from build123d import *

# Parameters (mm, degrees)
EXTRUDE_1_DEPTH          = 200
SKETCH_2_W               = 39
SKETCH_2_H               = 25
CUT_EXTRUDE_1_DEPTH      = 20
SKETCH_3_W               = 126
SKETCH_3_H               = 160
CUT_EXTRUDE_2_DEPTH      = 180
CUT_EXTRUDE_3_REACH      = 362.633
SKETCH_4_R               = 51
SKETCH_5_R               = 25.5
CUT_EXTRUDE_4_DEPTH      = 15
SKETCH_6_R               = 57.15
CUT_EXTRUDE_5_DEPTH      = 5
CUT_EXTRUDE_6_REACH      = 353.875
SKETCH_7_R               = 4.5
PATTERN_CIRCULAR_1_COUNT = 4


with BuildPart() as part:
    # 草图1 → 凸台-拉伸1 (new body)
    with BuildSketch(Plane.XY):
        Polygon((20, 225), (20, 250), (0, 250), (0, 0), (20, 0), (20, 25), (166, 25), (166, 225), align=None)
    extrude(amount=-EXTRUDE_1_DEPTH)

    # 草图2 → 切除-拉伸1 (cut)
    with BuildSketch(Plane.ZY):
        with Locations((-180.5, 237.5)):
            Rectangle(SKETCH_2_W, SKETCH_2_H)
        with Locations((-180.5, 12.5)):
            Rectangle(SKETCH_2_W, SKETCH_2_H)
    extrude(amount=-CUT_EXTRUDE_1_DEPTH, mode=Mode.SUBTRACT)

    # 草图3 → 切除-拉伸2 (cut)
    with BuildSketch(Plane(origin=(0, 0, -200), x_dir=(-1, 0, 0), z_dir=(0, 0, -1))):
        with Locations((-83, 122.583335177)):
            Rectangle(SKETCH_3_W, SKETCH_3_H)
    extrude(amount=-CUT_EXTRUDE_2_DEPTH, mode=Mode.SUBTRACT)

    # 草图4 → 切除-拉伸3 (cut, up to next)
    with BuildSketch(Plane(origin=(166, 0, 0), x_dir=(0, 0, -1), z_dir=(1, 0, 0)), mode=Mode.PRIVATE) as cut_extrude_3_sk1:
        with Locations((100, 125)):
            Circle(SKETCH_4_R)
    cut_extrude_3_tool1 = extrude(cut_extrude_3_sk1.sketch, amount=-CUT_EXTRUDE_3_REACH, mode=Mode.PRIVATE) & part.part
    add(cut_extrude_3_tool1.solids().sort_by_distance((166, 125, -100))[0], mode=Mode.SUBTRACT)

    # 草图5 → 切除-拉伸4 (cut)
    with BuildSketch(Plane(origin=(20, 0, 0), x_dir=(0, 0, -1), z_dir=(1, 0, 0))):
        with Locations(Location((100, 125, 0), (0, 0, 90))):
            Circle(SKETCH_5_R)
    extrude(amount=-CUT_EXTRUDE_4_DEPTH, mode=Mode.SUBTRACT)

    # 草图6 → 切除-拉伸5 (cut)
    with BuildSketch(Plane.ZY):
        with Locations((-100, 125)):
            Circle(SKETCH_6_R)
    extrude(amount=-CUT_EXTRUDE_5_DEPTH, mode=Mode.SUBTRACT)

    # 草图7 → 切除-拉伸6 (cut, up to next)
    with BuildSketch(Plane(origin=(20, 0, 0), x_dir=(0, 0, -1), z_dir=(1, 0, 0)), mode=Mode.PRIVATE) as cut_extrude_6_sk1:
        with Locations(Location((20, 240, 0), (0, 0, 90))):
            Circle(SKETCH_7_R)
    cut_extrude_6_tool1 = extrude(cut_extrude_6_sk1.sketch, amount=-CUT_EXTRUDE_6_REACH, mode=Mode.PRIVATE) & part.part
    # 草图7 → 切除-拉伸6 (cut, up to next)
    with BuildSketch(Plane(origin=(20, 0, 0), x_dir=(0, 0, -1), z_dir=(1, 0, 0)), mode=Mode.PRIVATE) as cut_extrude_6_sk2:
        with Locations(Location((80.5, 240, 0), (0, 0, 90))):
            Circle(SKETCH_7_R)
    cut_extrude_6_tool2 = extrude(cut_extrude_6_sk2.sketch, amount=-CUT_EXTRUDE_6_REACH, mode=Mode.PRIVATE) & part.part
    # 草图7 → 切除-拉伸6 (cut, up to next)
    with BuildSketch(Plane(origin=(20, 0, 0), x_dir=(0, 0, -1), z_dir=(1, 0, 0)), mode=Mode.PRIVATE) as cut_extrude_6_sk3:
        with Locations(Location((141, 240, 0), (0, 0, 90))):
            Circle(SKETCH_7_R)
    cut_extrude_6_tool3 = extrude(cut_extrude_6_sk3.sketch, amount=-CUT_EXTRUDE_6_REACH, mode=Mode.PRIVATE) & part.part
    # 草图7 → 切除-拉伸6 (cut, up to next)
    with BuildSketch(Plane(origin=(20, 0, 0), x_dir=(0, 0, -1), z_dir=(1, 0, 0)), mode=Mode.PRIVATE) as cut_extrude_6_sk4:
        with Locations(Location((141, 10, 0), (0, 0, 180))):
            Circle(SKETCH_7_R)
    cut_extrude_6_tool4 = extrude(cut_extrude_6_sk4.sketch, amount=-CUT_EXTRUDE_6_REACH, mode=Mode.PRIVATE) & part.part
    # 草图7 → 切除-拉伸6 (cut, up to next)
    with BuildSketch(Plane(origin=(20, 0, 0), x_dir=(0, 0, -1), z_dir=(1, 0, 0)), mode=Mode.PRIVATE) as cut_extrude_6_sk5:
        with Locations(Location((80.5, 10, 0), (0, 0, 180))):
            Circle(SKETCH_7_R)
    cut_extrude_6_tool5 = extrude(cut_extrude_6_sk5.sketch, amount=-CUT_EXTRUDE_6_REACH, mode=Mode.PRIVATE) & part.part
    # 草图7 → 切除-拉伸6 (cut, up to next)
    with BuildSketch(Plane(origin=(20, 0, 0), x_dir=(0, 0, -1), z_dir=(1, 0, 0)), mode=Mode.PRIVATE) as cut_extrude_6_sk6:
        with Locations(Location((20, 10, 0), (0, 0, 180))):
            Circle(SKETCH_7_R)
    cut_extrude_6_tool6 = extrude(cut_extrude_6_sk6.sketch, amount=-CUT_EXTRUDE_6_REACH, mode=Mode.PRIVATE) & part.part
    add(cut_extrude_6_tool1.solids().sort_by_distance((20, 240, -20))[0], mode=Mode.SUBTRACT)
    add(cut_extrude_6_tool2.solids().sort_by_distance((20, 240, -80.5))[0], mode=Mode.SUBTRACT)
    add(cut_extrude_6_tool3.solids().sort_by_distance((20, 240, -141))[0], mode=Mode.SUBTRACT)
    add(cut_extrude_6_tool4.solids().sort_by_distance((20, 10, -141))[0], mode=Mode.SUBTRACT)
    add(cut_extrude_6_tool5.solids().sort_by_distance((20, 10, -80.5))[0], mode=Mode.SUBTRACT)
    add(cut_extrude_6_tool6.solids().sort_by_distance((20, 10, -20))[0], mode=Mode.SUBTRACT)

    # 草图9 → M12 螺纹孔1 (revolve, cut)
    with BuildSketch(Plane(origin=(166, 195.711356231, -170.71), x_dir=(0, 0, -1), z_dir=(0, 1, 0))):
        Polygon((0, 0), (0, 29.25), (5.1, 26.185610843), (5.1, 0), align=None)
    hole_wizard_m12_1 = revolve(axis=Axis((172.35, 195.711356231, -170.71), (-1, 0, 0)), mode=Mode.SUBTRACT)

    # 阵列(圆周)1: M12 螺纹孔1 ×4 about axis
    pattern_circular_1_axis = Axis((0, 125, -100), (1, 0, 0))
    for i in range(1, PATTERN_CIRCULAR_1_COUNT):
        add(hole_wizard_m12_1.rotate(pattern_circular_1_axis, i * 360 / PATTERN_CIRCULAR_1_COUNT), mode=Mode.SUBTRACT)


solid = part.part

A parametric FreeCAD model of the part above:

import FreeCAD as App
import Part
import Sketcher

V = App.Vector
Q = App.Units.Quantity


def add_polygon(sketch, points):
    """Adds a closed chain of lines whose ends are joined by coincident constraints."""
    first, n = sketch.GeometryCount, len(points)
    for a, b in zip(points, points[1:] + points[:1]):
        sketch.addGeometry(Part.LineSegment(App.Vector(*a, 0), App.Vector(*b, 0)), False)
    for i in range(n):
        sketch.addConstraint(Sketcher.Constraint("Coincident", first + i, 2, first + (i + 1) % n, 1))

doc = App.newDocument("Part")
body = doc.addObject("PartDesign::Body", "Body")

sketch1 = body.newObject("Sketcher::SketchObject", "Sketch")
sketch1.AttachmentSupport = (doc.getObject("XY_Plane"), [""])
sketch1.MapMode = "FlatFace"
add_polygon(sketch1, [(20, 225), (20, 250), (0, 250), (0, 0), (20, 0), (20, 25), (166, 25), (166, 225)])
sketch1.addConstraint(Sketcher.Constraint("Vertical", 0))
sketch1.addConstraint(Sketcher.Constraint("Horizontal", 1))
sketch1.addConstraint(Sketcher.Constraint("Vertical", 2))
sketch1.addConstraint(Sketcher.Constraint("Horizontal", 3))
sketch1.addConstraint(Sketcher.Constraint("Vertical", 4))
sketch1.addConstraint(Sketcher.Constraint("Horizontal", 5))
sketch1.addConstraint(Sketcher.Constraint("Vertical", 6))
sketch1.addConstraint(Sketcher.Constraint("Horizontal", 7))
sketch1.addConstraint(Sketcher.Constraint("Coincident", 2, 2, -1, 1))
sketch1.addConstraint(Sketcher.Constraint("Vertical", 0, 2, 3, 2))
sketch1.addConstraint(Sketcher.Constraint("Equal", 0, 4))
sketch1.addConstraint(Sketcher.Constraint("DistanceX", 1, 2, 1, 1, Q("20 mm")))
sketch1.addConstraint(Sketcher.Constraint("DistanceX", 5, 1, 5, 2, Q("146 mm")))
sketch1.addConstraint(Sketcher.Constraint("DistanceY", 0, 1, 0, 2, Q("25 mm")))
sketch1.addConstraint(Sketcher.Constraint("DistanceY", 2, 2, 2, 1, Q("250 mm")))
pad1 = body.newObject("PartDesign::Pad", "Pad")
pad1.Profile = sketch1
pad1.Length = 200
pad1.Reversed = True

sketch2 = body.newObject("Sketcher::SketchObject", "Sketch001")
sketch2.AttachmentSupport = (doc.getObject("YZ_Plane"), [""])
sketch2.MapMode = "FlatFace"
add_polygon(sketch2, [(250, -200), (225, -200), (225, -161), (250, -161)])
add_polygon(sketch2, [(25, -200), (0, -200), (0, -161), (25, -161)])
sketch2.addConstraint(Sketcher.Constraint("Horizontal", 0))
sketch2.addConstraint(Sketcher.Constraint("Vertical", 1))
sketch2.addConstraint(Sketcher.Constraint("Horizontal", 2))
sketch2.addConstraint(Sketcher.Constraint("Vertical", 3))
sketch2.addConstraint(Sketcher.Constraint("Horizontal", 4))
sketch2.addConstraint(Sketcher.Constraint("Vertical", 5))
sketch2.addConstraint(Sketcher.Constraint("Horizontal", 6))
sketch2.addConstraint(Sketcher.Constraint("Vertical", 7))
sketch2.addConstraint(Sketcher.Constraint("PointOnObject", 4, 2, -2))
sketch2.addConstraint(Sketcher.Constraint("Horizontal", 3, 2, 4, 2))
sketch2.addConstraint(Sketcher.Constraint("Horizontal", 2, 2, 5, 2))
sketch2.addConstraint(Sketcher.Constraint("Equal", 2, 4))
sketch2.addConstraint(Sketcher.Constraint("DistanceX", 0, 2, 0, 1, Q("25 mm")))
sketch2.addConstraint(Sketcher.Constraint("DistanceY", 1, 1, 1, 2, Q("39 mm")))
sketch2.addConstraint(Sketcher.Constraint("DistanceX", -1, 1, 0, 2, Q("225 mm")))
sketch2.addConstraint(Sketcher.Constraint("DistanceY", 0, 2, -1, 1, Q("200 mm")))
pocket1 = body.newObject("PartDesign::Pocket", "Pocket")
pocket1.Profile = sketch2
pocket1.Length = 20
pocket1.Reversed = True

sketch3 = body.newObject("Sketcher::SketchObject", "Sketch002")
sketch3.AttachmentSupport = (doc.getObject("XY_Plane"), [""])
sketch3.MapMode = "FlatFace"
sketch3.AttachmentOffset = App.Placement(V(0, 0, -200), App.Rotation())
add_polygon(sketch3, [(146, 202.583335), (146, 42.583335), (20, 42.583335), (20, 202.583335)])
sketch3.addConstraint(Sketcher.Constraint("Vertical", 0))
sketch3.addConstraint(Sketcher.Constraint("Horizontal", 1))
sketch3.addConstraint(Sketcher.Constraint("Vertical", 2))
sketch3.addConstraint(Sketcher.Constraint("Horizontal", 3))
sketch3.addConstraint(Sketcher.Constraint("DistanceX", 1, 2, 1, 1, Q("126 mm")))
sketch3.addConstraint(Sketcher.Constraint("DistanceY", 0, 2, 0, 1, Q("160 mm")))
sketch3.addConstraint(Sketcher.Constraint("DistanceX", -1, 1, 0, 2, Q("146 mm")))
sketch3.addConstraint(Sketcher.Constraint("DistanceY", -1, 1, 0, 2, Q("42.583335 mm")))
pocket2 = body.newObject("PartDesign::Pocket", "Pocket001")
pocket2.Profile = sketch3
pocket2.Length = 180
pocket2.Reversed = True

sketch4 = body.newObject("Sketcher::SketchObject", "Sketch003")
sketch4.AttachmentSupport = (doc.getObject("YZ_Plane"), [""])
sketch4.MapMode = "FlatFace"
sketch4.AttachmentOffset = App.Placement(V(0, 0, 166), App.Rotation())
sketch4.addGeometry(Part.Circle(V(125, -100, 0), V(0, 0, 1), 51), False)
sketch4.addConstraint(Sketcher.Constraint("Diameter", 0, Q("102 mm")))
sketch4.addConstraint(Sketcher.Constraint("DistanceX", -1, 1, 0, 3, Q("125 mm")))
sketch4.addConstraint(Sketcher.Constraint("DistanceY", 0, 3, -1, 1, Q("100 mm")))
pocket3 = body.newObject("PartDesign::Pocket", "Pocket002")
pocket3.Profile = sketch4
pocket3.Type = "UpToFirst"

sketch5 = body.newObject("Sketcher::SketchObject", "Sketch004")
sketch5.AttachmentSupport = (doc.getObject("YZ_Plane"), [""])
sketch5.MapMode = "FlatFace"
sketch5.AttachmentOffset = App.Placement(V(0, 0, 20), App.Rotation())
sketch5.addGeometry(Part.Circle(V(125, -100, 0), V(0, 0, 1), 25.5), False)
sketch5.addConstraint(Sketcher.Constraint("Diameter", 0, Q("51 mm")))
sketch5.addConstraint(Sketcher.Constraint("DistanceX", -1, 1, 0, 3, Q("125 mm")))
sketch5.addConstraint(Sketcher.Constraint("DistanceY", 0, 3, -1, 1, Q("100 mm")))
pocket4 = body.newObject("PartDesign::Pocket", "Pocket003")
pocket4.Profile = sketch5
pocket4.Length = 15

sketch6 = body.newObject("Sketcher::SketchObject", "Sketch005")
sketch6.AttachmentSupport = (doc.getObject("YZ_Plane"), [""])
sketch6.MapMode = "FlatFace"
sketch6.addGeometry(Part.Circle(V(125, -100, 0), V(0, 0, 1), 57.15), False)
sketch6.addConstraint(Sketcher.Constraint("Diameter", 0, Q("114.3 mm")))
sketch6.addConstraint(Sketcher.Constraint("DistanceX", -1, 1, 0, 3, Q("125 mm")))
sketch6.addConstraint(Sketcher.Constraint("DistanceY", 0, 3, -1, 1, Q("100 mm")))
pocket5 = body.newObject("PartDesign::Pocket", "Pocket004")
pocket5.Profile = sketch6
pocket5.Length = 5
pocket5.Reversed = True

sketch7 = body.newObject("Sketcher::SketchObject", "Sketch006")
sketch7.AttachmentSupport = (doc.getObject("YZ_Plane"), [""])
sketch7.MapMode = "FlatFace"
sketch7.AttachmentOffset = App.Placement(V(0, 0, 20), App.Rotation())
sketch7.addGeometry(Part.Circle(V(240, -20, 0), V(0, 0, 1), 4.5), False)
sketch7.addConstraint(Sketcher.Constraint("Diameter", 0, Q("9 mm")))
sketch7.addConstraint(Sketcher.Constraint("DistanceX", -1, 1, 0, 3, Q("240 mm")))
sketch7.addConstraint(Sketcher.Constraint("DistanceY", 0, 3, -1, 1, Q("20 mm")))
pocket6 = body.newObject("PartDesign::Pocket", "Pocket005")
pocket6.Profile = sketch7
pocket6.Type = "UpToFirst"

sketch8 = body.newObject("Sketcher::SketchObject", "Sketch007")
sketch8.AttachmentSupport = (doc.getObject("YZ_Plane"), [""])
sketch8.MapMode = "FlatFace"
sketch8.AttachmentOffset = App.Placement(V(0, 0, 20), App.Rotation())
sketch8.addGeometry(Part.Circle(V(240, -80.5, 0), V(0, 0, 1), 4.5), False)
sketch8.addConstraint(Sketcher.Constraint("Diameter", 0, Q("9 mm")))
sketch8.addConstraint(Sketcher.Constraint("DistanceX", -1, 1, 0, 3, Q("240 mm")))
sketch8.addConstraint(Sketcher.Constraint("DistanceY", 0, 3, -1, 1, Q("80.5 mm")))
pocket7 = body.newObject("PartDesign::Pocket", "Pocket006")
pocket7.Profile = sketch8
pocket7.Type = "UpToFirst"

sketch9 = body.newObject("Sketcher::SketchObject", "Sketch008")
sketch9.AttachmentSupport = (doc.getObject("YZ_Plane"), [""])
sketch9.MapMode = "FlatFace"
sketch9.AttachmentOffset = App.Placement(V(0, 0, 20), App.Rotation())
sketch9.addGeometry(Part.Circle(V(240, -141, 0), V(0, 0, 1), 4.5), False)
sketch9.addConstraint(Sketcher.Constraint("Diameter", 0, Q("9 mm")))
sketch9.addConstraint(Sketcher.Constraint("DistanceX", -1, 1, 0, 3, Q("240 mm")))
sketch9.addConstraint(Sketcher.Constraint("DistanceY", 0, 3, -1, 1, Q("141 mm")))
pocket8 = body.newObject("PartDesign::Pocket", "Pocket007")
pocket8.Profile = sketch9
pocket8.Type = "UpToFirst"

sketch10 = body.newObject("Sketcher::SketchObject", "Sketch009")
sketch10.AttachmentSupport = (doc.getObject("YZ_Plane"), [""])
sketch10.MapMode = "FlatFace"
sketch10.AttachmentOffset = App.Placement(V(0, 0, 20), App.Rotation())
sketch10.addGeometry(Part.Circle(V(10, -141, 0), V(0, 0, 1), 4.5), False)
sketch10.addConstraint(Sketcher.Constraint("Diameter", 0, Q("9 mm")))
sketch10.addConstraint(Sketcher.Constraint("DistanceX", -1, 1, 0, 3, Q("10 mm")))
sketch10.addConstraint(Sketcher.Constraint("DistanceY", 0, 3, -1, 1, Q("141 mm")))
pocket9 = body.newObject("PartDesign::Pocket", "Pocket008")
pocket9.Profile = sketch10
pocket9.Type = "UpToFirst"

sketch11 = body.newObject("Sketcher::SketchObject", "Sketch010")
sketch11.AttachmentSupport = (doc.getObject("YZ_Plane"), [""])
sketch11.MapMode = "FlatFace"
sketch11.AttachmentOffset = App.Placement(V(0, 0, 20), App.Rotation())
sketch11.addGeometry(Part.Circle(V(10, -80.5, 0), V(0, 0, 1), 4.5), False)
sketch11.addConstraint(Sketcher.Constraint("Diameter", 0, Q("9 mm")))
sketch11.addConstraint(Sketcher.Constraint("DistanceX", -1, 1, 0, 3, Q("10 mm")))
sketch11.addConstraint(Sketcher.Constraint("DistanceY", 0, 3, -1, 1, Q("80.5 mm")))
pocket10 = body.newObject("PartDesign::Pocket", "Pocket009")
pocket10.Profile = sketch11
pocket10.Type = "UpToFirst"

sketch12 = body.newObject("Sketcher::SketchObject", "Sketch011")
sketch12.AttachmentSupport = (doc.getObject("YZ_Plane"), [""])
sketch12.MapMode = "FlatFace"
sketch12.AttachmentOffset = App.Placement(V(0, 0, 20), App.Rotation())
sketch12.addGeometry(Part.Circle(V(10, -20, 0), V(0, 0, 1), 4.5), False)
sketch12.addConstraint(Sketcher.Constraint("Diameter", 0, Q("9 mm")))
sketch12.addConstraint(Sketcher.Constraint("DistanceX", -1, 1, 0, 3, Q("10 mm")))
sketch12.addConstraint(Sketcher.Constraint("DistanceY", 0, 3, -1, 1, Q("20 mm")))
pocket11 = body.newObject("PartDesign::Pocket", "Pocket010")
pocket11.Profile = sketch12
pocket11.Type = "UpToFirst"

sketch13 = body.newObject("Sketcher::SketchObject", "Sketch012")
sketch13.AttachmentSupport = (doc.getObject("XZ_Plane"), [""])
sketch13.MapMode = "FlatFace"
sketch13.AttachmentOffset = App.Placement(V(0, 0, -195.711356), App.Rotation())
add_polygon(sketch13, [(136.75, -170.71), (166, -170.71), (166, -175.81), (139.814389, -175.81)])
sketch13.addGeometry(Part.LineSegment(V(166, -170.71, 0), V(136.75, -170.71, 0)), True)
sketch13.addConstraint(Sketcher.Constraint("Horizontal", 0))
sketch13.addConstraint(Sketcher.Constraint("Vertical", 1))
sketch13.addConstraint(Sketcher.Constraint("Horizontal", 2))
sketch13.addConstraint(Sketcher.Constraint("Horizontal", 4))
sketch13.addConstraint(Sketcher.Constraint("Coincident", 4, 1, 0, 2))
sketch13.addConstraint(Sketcher.Constraint("Equal", 0, 4))
sketch13.addConstraint(Sketcher.Constraint("Angle", 3, Q("121 deg")))
sketch13.addConstraint(Sketcher.Constraint("DistanceY", 1, 2, 1, 1, Q("5.1 mm")))
sketch13.addConstraint(Sketcher.Constraint("DistanceX", -1, 1, 0, 2, Q("166 mm")))
sketch13.addConstraint(Sketcher.Constraint("DistanceX", 0, 1, 0, 2, Q("29.25 mm")))
sketch13.addConstraint(Sketcher.Constraint("DistanceY", 0, 2, -1, 1, Q("170.71 mm")))
groove = body.newObject("PartDesign::Groove", "Groove")
groove.Profile = sketch13
groove.ReferenceAxis = (sketch13, ["Axis0"])
groove.Angle = 360
doc.recompute()

datumline = body.newObject("PartDesign::Line", "DatumLine")
datumline.Placement = App.Placement(V(0, 125, -100), App.Rotation(V(0, 0, 1), V(1, 0, 0)))
polarpattern = body.newObject("PartDesign::PolarPattern", "PolarPattern")
polarpattern.Originals = [groove]
polarpattern.Axis = (datumline, [""])
polarpattern.Angle = 360
polarpattern.Occurrences = 4
body.Tip = polarpattern

doc.recompute()
